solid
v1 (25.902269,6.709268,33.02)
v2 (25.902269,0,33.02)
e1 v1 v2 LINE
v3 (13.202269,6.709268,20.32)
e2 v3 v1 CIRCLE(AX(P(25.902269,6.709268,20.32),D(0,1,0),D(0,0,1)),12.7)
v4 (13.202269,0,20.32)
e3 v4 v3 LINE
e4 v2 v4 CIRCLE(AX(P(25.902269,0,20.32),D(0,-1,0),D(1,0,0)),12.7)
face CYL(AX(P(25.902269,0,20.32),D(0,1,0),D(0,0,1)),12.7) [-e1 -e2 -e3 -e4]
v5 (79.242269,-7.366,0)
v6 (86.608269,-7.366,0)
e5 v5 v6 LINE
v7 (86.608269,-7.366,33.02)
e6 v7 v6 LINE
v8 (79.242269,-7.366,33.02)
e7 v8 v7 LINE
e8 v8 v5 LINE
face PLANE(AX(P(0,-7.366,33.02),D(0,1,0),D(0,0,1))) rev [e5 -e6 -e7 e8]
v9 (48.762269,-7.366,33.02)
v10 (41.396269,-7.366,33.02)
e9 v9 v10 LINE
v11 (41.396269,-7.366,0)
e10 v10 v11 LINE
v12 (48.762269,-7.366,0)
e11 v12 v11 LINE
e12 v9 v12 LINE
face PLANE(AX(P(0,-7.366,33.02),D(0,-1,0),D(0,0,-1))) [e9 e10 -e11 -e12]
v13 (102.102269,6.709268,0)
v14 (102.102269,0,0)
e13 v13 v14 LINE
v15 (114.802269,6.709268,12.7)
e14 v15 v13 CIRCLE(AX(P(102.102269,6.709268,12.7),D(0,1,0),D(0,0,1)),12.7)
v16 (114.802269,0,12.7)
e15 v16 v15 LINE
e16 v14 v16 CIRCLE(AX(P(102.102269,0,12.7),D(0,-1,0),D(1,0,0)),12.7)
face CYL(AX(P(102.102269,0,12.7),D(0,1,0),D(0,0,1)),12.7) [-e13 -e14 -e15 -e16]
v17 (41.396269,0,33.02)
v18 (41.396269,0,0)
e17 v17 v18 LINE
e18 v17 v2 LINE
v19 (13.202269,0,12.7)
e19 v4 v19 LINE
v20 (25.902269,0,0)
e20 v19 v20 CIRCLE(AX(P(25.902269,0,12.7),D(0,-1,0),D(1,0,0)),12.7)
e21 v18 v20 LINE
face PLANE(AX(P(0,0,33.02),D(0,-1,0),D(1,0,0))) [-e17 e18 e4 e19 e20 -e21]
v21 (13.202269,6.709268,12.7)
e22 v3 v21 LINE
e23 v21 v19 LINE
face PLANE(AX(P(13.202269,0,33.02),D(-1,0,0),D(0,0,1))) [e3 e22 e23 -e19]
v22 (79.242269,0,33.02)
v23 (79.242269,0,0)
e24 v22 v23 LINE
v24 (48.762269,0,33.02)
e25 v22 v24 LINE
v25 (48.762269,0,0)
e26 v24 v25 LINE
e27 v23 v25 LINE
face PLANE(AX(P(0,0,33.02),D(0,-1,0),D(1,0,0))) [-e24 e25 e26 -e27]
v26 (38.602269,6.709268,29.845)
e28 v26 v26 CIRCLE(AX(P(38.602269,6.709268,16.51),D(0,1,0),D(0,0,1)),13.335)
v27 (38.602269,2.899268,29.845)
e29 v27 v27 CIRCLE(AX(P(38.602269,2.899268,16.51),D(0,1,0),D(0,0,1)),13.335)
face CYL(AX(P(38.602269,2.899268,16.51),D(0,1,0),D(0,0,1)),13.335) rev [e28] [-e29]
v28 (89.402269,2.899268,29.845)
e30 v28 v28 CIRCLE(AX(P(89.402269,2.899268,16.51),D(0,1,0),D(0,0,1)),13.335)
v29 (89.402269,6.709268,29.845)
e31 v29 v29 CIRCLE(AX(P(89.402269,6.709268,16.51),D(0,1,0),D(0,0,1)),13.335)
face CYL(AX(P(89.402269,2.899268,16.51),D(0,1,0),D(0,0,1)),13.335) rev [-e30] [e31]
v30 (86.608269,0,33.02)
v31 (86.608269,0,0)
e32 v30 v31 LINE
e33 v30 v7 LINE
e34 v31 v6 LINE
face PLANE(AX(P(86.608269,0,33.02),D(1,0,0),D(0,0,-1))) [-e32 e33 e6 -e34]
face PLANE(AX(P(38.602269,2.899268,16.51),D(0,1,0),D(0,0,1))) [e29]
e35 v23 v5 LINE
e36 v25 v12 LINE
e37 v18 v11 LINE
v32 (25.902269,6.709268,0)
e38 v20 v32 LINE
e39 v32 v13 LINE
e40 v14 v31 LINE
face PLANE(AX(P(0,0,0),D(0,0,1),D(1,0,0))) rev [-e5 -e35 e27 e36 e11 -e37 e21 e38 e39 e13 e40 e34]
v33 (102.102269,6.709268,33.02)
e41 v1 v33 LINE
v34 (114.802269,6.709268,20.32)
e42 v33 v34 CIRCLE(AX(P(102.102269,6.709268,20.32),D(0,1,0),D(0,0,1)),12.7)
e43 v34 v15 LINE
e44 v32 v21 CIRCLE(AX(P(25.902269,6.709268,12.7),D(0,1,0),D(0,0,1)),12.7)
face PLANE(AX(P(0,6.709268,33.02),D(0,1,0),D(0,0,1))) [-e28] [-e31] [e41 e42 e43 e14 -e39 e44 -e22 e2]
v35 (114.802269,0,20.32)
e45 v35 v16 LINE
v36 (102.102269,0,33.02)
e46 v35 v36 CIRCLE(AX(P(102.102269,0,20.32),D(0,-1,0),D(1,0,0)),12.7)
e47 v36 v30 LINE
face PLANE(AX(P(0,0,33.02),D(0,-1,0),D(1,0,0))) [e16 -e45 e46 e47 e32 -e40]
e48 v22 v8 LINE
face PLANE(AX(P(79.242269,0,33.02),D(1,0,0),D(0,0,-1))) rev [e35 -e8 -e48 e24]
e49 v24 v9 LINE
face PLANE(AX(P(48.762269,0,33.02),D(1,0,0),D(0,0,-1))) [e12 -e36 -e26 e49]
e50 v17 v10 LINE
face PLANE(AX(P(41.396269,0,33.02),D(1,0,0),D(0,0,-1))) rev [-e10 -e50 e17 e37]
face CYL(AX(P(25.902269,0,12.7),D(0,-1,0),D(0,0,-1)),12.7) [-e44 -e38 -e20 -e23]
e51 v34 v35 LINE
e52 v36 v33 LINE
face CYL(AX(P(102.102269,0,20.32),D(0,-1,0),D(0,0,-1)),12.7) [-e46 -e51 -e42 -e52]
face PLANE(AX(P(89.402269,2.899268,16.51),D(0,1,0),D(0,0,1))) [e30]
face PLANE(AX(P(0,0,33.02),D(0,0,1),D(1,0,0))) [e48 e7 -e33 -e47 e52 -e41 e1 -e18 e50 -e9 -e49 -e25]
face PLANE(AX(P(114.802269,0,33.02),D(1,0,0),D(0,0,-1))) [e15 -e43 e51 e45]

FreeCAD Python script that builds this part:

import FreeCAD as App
import Part
import Sketcher
Q = App.Units.Quantity


def edges_at(feature, points):
    """Names of the edges that pass closest to the given points."""
    edges = feature.Shape.Edges
    near = lambda p: min(range(len(edges)), key=lambda i: edges[i].distToShape(Part.Vertex(*p))[0])
    return sorted({f"Edge{near(p) + 1}" for p in points})


def add_polygon(sketch, points):
    """Adds a closed chain of lines whose ends are joined by coincident constraints."""
    first, n = sketch.GeometryCount, len(points)
    for a, b in zip(points, points[1:] + points[:1]):
        sketch.addGeometry(Part.LineSegment(App.Vector(*a, 0), App.Vector(*b, 0)), False)
    for i in range(n):
        sketch.addConstraint(Sketcher.Constraint("Coincident", first + i, 2, first + (i + 1) % n, 1))

doc = App.newDocument("Part")
params = doc.addObject("Spreadsheet::Sheet", "Params")
for row, (alias, value) in enumerate([
    ("sketch1_width", "4 in"),
    ("sketch1_width2", "1.2 in"),
    ("sketch1_width3", "1.11 in"),
    ("pad1_length", "1.3 in"),
    ("sketch2_diameter", "1.05 in"),
    ("pocket1_length", "0.15 in"),
    ("fillet_radius", "0.5 in"),
], start=1):
    params.set(f"A{row}", alias)
    params.set(f"B{row}", "=" + value)
    params.setAlias(f"B{row}", alias)

body = doc.addObject("PartDesign::Body", "Body")

# Sketch on XY plane
sketch1 = doc.addObject("Sketcher::SketchObject", "Sketch")
body.addObject(sketch1)
sketch1.AttachmentSupport = (doc.XY_Plane, [""])
sketch1.MapMode = "FlatFace"
add_polygon(sketch1, [(13.202269, 0), (41.396269, 0), (41.396269, -7.366), (48.762269, -7.366), (48.762269, 0), (79.242269, 0), (79.242269, -7.366), (86.608269, -7.366), (86.608269, 0), (114.802269, 0), (114.802269, 6.709268), (13.202269, 6.709268)])  # lines 0-11
sketch1.addConstraint([
    Sketcher.Constraint("Horizontal", 0),
    Sketcher.Constraint("Vertical", 1),
    Sketcher.Constraint("Horizontal", 2),
    Sketcher.Constraint("Vertical", 3),
    Sketcher.Constraint("Horizontal", 4),
    Sketcher.Constraint("Vertical", 5),
    Sketcher.Constraint("Horizontal", 6),
    Sketcher.Constraint("Vertical", 7),
    Sketcher.Constraint("Horizontal", 8),
    Sketcher.Constraint("Vertical", 9),
    Sketcher.Constraint("Horizontal", 10),
    Sketcher.Constraint("Vertical", 11),
    Sketcher.Constraint("PointOnObject", 0, 2, -1),
    Sketcher.Constraint("PointOnObject", 3, 2, -1),
    Sketcher.Constraint("PointOnObject", 7, 2, -1),
    Sketcher.Constraint("Horizontal", 2, 2, 5, 2),
    Sketcher.Constraint("Equal", 2, 6),
    Sketcher.Constraint("Equal", 0, 8),
    Sketcher.Constraint("Equal", 6, 1),
    Sketcher.Constraint("DistanceX", 10, 2, 10, 1, Q("4 in")),
    Sketcher.Constraint("DistanceX", 4, 1, 4, 2, Q("1.2 in")),
    Sketcher.Constraint("DistanceX", 0, 1, 0, 2, Q("1.11 in")),
    Sketcher.Constraint("DistanceY", 9, 1, 9, 2, 6.709268),
    Sketcher.Constraint("DistanceX", -1, 1, 0, 2, 41.396269),
])
sketch1.setExpression("Constraints[31]", "Params.sketch1_width")
sketch1.setExpression("Constraints[32]", "Params.sketch1_width2")
sketch1.setExpression("Constraints[33]", "Params.sketch1_width3")
pad1 = doc.addObject("PartDesign::Pad", "Pad")
body.addObject(pad1)
pad1.Profile = sketch1
pad1.setExpression("Length", "Params.pad1_length")

# Sketch on XZ plane
sketch2 = doc.addObject("Sketcher::SketchObject", "Sketch001")
body.addObject(sketch2)
sketch2.AttachmentSupport = (doc.XZ_Plane, [""])
sketch2.MapMode = "FlatFace"
sketch2.AttachmentOffset = App.Placement(App.Vector(0, 0, -6.709268), App.Rotation())
sketch2.addGeometry([
    Part.Circle(App.Vector(38.602269, 16.51, 0), App.Vector(0, 0, 1), 13.335),
    Part.Circle(App.Vector(89.402269, 16.51, 0), App.Vector(0, 0, 1), 13.335),
], False)
sketch2.addConstraint([
    Sketcher.Constraint("Equal", 0, 1),
    Sketcher.Constraint("Horizontal", 0, 3, 1, 3),
    Sketcher.Constraint("Diameter", 0, Q("1.05 in")),
    Sketcher.Constraint("DistanceX", 0, 3, 1, 3, Q("2 in")),
    Sketcher.Constraint("DistanceY", -1, 1, 0, 3, Q("0.65 in")),
    Sketcher.Constraint("DistanceX", -1, 1, 0, 3, 38.602269),
])
sketch2.setExpression("Constraints[2]", "Params.sketch2_diameter")
pocket1 = doc.addObject("PartDesign::Pocket", "Pocket")
body.addObject(pocket1)
pocket1.Profile = sketch2
pocket1.setExpression("Length", "Params.pocket1_length")
pocket1.Reversed = True
doc.recompute()

fillet = doc.addObject("PartDesign::Fillet", "Fillet")
body.addObject(fillet)
fillet.Base = (pocket1, edges_at(pocket1, [
    (114.802, 3.355, 33.02),
    (13.202, 3.355, 0),
    (114.802, 3.355, 0),
    (13.202, 3.355, 33.02),
]))
fillet.setExpression("Radius", "Params.fillet_radius")

doc.recompute()
